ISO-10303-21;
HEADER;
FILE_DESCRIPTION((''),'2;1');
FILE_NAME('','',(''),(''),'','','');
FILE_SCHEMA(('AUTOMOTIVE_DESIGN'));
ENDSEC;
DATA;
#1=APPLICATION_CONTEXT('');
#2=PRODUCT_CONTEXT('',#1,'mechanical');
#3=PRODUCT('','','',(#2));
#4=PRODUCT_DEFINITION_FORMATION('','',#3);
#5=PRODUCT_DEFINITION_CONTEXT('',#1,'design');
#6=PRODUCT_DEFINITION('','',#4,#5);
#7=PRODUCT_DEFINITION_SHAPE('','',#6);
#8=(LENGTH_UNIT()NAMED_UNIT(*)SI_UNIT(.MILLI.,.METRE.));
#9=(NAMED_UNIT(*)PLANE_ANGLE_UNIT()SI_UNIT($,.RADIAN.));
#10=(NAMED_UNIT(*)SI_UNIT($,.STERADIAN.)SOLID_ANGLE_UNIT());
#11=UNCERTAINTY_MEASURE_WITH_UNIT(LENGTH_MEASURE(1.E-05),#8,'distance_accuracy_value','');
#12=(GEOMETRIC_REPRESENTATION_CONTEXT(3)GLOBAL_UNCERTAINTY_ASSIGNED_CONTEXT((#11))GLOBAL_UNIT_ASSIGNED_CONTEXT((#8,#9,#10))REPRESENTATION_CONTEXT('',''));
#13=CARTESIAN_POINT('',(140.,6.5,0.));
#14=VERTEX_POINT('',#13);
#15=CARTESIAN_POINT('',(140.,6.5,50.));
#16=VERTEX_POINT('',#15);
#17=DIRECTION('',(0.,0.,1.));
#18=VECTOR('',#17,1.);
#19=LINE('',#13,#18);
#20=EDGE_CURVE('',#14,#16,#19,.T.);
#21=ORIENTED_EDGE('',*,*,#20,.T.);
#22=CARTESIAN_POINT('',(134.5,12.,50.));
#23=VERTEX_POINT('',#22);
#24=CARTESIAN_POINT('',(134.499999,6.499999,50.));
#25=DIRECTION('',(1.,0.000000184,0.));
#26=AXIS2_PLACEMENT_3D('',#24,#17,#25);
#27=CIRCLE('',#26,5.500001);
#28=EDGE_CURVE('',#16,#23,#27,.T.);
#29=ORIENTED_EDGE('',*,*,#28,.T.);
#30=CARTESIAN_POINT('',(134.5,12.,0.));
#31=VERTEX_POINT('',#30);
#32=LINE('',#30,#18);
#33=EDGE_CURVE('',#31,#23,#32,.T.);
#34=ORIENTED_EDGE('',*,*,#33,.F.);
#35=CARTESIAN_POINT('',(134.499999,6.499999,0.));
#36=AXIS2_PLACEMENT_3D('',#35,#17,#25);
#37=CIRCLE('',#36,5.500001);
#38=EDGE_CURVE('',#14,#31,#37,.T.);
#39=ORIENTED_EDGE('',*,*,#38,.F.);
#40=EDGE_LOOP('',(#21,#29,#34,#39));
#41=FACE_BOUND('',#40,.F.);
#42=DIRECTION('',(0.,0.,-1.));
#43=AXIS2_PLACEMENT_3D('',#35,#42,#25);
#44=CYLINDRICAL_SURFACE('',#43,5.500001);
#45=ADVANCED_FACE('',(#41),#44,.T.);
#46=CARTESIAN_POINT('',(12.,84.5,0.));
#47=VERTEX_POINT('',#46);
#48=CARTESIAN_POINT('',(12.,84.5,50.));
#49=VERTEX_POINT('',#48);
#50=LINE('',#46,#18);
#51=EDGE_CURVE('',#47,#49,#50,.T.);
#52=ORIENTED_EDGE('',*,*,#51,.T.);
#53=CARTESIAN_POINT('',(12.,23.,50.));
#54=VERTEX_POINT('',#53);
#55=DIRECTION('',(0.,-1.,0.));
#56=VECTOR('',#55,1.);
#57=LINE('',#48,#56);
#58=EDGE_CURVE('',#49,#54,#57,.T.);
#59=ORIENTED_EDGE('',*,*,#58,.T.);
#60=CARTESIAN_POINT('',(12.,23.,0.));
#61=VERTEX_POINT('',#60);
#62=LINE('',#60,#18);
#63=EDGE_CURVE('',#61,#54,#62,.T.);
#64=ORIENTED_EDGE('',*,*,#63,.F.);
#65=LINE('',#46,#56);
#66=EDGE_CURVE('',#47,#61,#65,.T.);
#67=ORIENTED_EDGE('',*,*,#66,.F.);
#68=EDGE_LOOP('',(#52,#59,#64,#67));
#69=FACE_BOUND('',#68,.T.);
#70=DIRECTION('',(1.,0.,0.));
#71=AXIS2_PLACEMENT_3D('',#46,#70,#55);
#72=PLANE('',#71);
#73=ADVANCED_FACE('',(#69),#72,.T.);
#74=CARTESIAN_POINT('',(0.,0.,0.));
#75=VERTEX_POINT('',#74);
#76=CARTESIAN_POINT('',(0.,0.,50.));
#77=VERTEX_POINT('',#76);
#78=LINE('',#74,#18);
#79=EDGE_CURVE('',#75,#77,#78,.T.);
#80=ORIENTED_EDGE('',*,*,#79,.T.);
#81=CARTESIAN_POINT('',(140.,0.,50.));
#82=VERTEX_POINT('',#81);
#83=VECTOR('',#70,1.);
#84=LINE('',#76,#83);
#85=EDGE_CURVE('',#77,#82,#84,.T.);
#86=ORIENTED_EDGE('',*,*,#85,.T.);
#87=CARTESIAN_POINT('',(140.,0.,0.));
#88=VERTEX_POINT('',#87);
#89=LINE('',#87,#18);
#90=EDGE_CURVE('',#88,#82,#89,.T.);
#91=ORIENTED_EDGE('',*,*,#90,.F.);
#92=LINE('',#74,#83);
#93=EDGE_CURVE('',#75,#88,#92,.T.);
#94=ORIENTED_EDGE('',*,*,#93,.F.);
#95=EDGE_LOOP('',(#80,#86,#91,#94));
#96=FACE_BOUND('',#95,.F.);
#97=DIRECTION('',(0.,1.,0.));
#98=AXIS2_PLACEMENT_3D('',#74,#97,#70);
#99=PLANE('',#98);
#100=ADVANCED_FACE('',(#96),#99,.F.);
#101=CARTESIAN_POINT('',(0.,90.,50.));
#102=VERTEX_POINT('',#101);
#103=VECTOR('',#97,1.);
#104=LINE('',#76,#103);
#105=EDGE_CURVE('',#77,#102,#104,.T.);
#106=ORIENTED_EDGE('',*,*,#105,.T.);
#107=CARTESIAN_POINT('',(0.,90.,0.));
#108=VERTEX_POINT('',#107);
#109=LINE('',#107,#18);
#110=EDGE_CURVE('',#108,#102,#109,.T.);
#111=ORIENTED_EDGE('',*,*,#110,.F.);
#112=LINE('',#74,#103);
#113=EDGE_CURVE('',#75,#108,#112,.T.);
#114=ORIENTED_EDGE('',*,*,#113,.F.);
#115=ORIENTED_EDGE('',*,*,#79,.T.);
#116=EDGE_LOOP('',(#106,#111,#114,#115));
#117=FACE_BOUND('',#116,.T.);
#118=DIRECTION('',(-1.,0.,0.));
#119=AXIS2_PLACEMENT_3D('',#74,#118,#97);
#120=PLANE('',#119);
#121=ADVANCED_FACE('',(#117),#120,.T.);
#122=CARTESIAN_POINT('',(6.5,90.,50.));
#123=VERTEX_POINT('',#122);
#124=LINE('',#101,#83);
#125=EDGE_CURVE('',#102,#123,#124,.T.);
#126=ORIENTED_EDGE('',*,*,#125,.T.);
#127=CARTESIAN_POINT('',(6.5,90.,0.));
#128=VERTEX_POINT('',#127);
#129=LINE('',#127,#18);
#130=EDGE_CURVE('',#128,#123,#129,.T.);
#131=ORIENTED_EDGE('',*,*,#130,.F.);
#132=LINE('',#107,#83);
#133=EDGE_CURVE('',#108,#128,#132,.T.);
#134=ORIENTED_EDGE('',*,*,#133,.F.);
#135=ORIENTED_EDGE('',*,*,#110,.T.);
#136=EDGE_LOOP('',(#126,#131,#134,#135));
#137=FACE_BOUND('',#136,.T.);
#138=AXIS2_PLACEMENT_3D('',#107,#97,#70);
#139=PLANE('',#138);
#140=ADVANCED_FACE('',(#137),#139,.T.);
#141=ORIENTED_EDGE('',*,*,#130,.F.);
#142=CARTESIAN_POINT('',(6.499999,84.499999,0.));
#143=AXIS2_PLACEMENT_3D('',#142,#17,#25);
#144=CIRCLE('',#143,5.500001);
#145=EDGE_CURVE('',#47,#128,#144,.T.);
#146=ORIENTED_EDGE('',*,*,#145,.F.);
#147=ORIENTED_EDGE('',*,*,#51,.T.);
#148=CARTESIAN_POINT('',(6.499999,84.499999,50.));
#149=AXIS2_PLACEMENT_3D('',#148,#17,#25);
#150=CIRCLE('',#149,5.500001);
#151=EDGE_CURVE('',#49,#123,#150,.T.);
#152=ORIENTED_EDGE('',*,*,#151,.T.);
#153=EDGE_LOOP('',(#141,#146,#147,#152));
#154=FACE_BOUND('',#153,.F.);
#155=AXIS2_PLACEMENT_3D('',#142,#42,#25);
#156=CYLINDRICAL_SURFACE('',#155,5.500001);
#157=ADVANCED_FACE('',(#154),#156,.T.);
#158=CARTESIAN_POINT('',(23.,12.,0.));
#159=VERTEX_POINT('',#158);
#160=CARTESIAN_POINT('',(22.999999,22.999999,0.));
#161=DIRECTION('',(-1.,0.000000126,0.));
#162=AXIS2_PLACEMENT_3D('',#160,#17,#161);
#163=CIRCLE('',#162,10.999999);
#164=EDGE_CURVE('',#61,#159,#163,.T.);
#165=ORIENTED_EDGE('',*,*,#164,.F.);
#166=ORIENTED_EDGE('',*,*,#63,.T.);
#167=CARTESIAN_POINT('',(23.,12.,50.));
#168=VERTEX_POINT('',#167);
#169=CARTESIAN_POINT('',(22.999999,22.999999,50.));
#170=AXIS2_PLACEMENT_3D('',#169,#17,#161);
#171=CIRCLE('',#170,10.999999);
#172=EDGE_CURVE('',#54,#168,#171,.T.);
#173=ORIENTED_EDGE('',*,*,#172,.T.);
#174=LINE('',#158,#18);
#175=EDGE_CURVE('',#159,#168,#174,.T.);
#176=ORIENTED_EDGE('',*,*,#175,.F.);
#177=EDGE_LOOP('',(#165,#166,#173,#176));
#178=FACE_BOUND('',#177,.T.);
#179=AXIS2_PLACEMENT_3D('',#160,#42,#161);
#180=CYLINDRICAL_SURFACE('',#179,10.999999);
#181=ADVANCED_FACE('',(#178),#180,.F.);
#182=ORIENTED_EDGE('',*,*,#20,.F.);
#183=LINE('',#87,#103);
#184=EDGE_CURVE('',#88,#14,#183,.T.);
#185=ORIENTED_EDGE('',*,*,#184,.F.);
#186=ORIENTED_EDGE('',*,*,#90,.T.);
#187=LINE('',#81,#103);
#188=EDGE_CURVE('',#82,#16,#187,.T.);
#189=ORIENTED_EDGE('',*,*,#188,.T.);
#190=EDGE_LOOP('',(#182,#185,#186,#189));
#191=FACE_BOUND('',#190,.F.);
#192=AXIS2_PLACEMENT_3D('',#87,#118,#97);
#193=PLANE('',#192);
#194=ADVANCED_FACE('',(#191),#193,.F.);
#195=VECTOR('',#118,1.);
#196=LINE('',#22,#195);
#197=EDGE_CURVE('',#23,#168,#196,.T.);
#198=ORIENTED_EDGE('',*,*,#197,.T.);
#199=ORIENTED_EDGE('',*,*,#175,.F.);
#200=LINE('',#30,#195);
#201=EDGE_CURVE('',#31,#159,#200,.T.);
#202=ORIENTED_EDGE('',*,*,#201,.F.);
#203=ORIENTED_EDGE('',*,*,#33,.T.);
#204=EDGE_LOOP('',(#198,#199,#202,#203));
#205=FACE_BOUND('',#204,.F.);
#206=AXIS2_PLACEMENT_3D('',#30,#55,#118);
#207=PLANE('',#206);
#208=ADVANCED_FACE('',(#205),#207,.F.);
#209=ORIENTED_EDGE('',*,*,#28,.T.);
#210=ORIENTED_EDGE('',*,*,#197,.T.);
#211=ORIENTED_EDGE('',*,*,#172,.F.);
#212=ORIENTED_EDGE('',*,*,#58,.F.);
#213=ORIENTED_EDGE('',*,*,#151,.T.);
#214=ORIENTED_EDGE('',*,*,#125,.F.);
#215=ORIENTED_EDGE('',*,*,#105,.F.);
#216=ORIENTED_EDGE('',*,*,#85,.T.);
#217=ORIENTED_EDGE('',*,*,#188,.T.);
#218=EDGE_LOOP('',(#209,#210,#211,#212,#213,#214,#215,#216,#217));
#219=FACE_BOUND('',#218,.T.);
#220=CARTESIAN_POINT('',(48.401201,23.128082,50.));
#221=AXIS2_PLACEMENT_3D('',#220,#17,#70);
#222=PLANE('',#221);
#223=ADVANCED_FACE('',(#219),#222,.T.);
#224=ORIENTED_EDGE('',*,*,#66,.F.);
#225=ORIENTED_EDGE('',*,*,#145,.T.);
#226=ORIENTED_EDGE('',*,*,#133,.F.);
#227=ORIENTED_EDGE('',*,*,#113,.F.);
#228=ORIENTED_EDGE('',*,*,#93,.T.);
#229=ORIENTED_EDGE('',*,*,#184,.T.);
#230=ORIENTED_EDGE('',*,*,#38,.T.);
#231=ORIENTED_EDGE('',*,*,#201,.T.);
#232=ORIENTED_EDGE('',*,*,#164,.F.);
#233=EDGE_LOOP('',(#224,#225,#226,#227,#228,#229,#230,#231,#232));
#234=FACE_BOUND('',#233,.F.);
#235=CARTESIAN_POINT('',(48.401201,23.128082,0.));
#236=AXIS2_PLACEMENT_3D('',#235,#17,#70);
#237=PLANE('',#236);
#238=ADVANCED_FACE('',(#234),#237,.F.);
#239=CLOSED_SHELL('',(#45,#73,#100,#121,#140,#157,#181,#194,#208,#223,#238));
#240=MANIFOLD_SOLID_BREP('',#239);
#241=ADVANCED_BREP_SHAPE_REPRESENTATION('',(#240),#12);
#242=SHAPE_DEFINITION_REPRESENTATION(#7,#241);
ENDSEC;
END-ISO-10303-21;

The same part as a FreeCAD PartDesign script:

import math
import FreeCAD as App
import Part
import Sketcher

V = App.Vector
Q = App.Units.Quantity

doc = App.newDocument("Part")
body = doc.addObject("PartDesign::Body", "Body")

sketch1 = body.newObject("Sketcher::SketchObject", "Sketch")
sketch1.AttachmentSupport = (doc.getObject("XY_Plane"), [""])
sketch1.MapMode = "FlatFace"
sketch1.addGeometry(Part.LineSegment(V(0, 0, 0), V(140, 0, 0)), False)
sketch1.addGeometry(Part.LineSegment(V(140, 0, 0), V(140, 6.5, 0)), False)
sketch1.addGeometry(Part.ArcOfCircle(Part.Circle(V(134.499999, 6.499999, 0), V(0, 0, 1), 5.500001), math.radians(0.000011), math.radians(89.999989)), False)
sketch1.addGeometry(Part.LineSegment(V(134.5, 12, 0), V(23, 12, 0)), False)
sketch1.addGeometry(Part.ArcOfCircle(Part.Circle(V(22.999999, 22.999999, 0), V(0, 0, 1), 10.999999), math.radians(179.999993), math.radians(270.000007)), False)
sketch1.addGeometry(Part.LineSegment(V(12, 23, 0), V(12, 84.5, 0)), False)
sketch1.addGeometry(Part.ArcOfCircle(Part.Circle(V(6.499999, 84.499999, 0), V(0, 0, 1), 5.500001), math.radians(0.000011), math.radians(89.999989)), False)
sketch1.addGeometry(Part.LineSegment(V(6.5, 90, 0), V(0, 90, 0)), False)
sketch1.addGeometry(Part.LineSegment(V(0, 90, 0), V(0, 0, 0)), False)
sketch1.addConstraint(Sketcher.Constraint("Coincident", 0, 2, 1, 1))
sketch1.addConstraint(Sketcher.Constraint("Tangent", 1, 2, 2, 1))
sketch1.addConstraint(Sketcher.Constraint("Tangent", 2, 2, 3, 1))
sketch1.addConstraint(Sketcher.Constraint("Tangent", 3, 2, 4, 2))
sketch1.addConstraint(Sketcher.Constraint("Tangent", 4, 1, 5, 1))
sketch1.addConstraint(Sketcher.Constraint("Tangent", 5, 2, 6, 1))
sketch1.addConstraint(Sketcher.Constraint("Tangent", 6, 2, 7, 1))
sketch1.addConstraint(Sketcher.Constraint("Coincident", 7, 2, 8, 1))
sketch1.addConstraint(Sketcher.Constraint("Coincident", 8, 2, 0, 1))
sketch1.addConstraint(Sketcher.Constraint("Horizontal", 0))
sketch1.addConstraint(Sketcher.Constraint("Vertical", 1))
sketch1.addConstraint(Sketcher.Constraint("Horizontal", 3))
sketch1.addConstraint(Sketcher.Constraint("Vertical", 5))
sketch1.addConstraint(Sketcher.Constraint("Horizontal", 7))
sketch1.addConstraint(Sketcher.Constraint("Vertical", 8))
sketch1.addConstraint(Sketcher.Constraint("Coincident", 8, 2, -1, 1))
sketch1.addConstraint(Sketcher.Constraint("Equal", 2, 6))
sketch1.addConstraint(Sketcher.Constraint("Equal", 7, 1))
sketch1.addConstraint(Sketcher.Constraint("Radius", 4, Q("10.999999 mm")))
sketch1.addConstraint(Sketcher.Constraint("Radius", 2, Q("5.500001 mm")))
sketch1.addConstraint(Sketcher.Constraint("DistanceX", 0, 1, 0, 2, Q("140 mm")))
sketch1.addConstraint(Sketcher.Constraint("DistanceY", 8, 2, 8, 1, Q("90 mm")))
sketch1.addConstraint(Sketcher.Constraint("DistanceX", 3, 2, 3, 1, Q("111.5 mm")))
pad1 = body.newObject("PartDesign::Pad", "Pad")
pad1.Profile = sketch1
pad1.Length = 50

doc.recompute()
